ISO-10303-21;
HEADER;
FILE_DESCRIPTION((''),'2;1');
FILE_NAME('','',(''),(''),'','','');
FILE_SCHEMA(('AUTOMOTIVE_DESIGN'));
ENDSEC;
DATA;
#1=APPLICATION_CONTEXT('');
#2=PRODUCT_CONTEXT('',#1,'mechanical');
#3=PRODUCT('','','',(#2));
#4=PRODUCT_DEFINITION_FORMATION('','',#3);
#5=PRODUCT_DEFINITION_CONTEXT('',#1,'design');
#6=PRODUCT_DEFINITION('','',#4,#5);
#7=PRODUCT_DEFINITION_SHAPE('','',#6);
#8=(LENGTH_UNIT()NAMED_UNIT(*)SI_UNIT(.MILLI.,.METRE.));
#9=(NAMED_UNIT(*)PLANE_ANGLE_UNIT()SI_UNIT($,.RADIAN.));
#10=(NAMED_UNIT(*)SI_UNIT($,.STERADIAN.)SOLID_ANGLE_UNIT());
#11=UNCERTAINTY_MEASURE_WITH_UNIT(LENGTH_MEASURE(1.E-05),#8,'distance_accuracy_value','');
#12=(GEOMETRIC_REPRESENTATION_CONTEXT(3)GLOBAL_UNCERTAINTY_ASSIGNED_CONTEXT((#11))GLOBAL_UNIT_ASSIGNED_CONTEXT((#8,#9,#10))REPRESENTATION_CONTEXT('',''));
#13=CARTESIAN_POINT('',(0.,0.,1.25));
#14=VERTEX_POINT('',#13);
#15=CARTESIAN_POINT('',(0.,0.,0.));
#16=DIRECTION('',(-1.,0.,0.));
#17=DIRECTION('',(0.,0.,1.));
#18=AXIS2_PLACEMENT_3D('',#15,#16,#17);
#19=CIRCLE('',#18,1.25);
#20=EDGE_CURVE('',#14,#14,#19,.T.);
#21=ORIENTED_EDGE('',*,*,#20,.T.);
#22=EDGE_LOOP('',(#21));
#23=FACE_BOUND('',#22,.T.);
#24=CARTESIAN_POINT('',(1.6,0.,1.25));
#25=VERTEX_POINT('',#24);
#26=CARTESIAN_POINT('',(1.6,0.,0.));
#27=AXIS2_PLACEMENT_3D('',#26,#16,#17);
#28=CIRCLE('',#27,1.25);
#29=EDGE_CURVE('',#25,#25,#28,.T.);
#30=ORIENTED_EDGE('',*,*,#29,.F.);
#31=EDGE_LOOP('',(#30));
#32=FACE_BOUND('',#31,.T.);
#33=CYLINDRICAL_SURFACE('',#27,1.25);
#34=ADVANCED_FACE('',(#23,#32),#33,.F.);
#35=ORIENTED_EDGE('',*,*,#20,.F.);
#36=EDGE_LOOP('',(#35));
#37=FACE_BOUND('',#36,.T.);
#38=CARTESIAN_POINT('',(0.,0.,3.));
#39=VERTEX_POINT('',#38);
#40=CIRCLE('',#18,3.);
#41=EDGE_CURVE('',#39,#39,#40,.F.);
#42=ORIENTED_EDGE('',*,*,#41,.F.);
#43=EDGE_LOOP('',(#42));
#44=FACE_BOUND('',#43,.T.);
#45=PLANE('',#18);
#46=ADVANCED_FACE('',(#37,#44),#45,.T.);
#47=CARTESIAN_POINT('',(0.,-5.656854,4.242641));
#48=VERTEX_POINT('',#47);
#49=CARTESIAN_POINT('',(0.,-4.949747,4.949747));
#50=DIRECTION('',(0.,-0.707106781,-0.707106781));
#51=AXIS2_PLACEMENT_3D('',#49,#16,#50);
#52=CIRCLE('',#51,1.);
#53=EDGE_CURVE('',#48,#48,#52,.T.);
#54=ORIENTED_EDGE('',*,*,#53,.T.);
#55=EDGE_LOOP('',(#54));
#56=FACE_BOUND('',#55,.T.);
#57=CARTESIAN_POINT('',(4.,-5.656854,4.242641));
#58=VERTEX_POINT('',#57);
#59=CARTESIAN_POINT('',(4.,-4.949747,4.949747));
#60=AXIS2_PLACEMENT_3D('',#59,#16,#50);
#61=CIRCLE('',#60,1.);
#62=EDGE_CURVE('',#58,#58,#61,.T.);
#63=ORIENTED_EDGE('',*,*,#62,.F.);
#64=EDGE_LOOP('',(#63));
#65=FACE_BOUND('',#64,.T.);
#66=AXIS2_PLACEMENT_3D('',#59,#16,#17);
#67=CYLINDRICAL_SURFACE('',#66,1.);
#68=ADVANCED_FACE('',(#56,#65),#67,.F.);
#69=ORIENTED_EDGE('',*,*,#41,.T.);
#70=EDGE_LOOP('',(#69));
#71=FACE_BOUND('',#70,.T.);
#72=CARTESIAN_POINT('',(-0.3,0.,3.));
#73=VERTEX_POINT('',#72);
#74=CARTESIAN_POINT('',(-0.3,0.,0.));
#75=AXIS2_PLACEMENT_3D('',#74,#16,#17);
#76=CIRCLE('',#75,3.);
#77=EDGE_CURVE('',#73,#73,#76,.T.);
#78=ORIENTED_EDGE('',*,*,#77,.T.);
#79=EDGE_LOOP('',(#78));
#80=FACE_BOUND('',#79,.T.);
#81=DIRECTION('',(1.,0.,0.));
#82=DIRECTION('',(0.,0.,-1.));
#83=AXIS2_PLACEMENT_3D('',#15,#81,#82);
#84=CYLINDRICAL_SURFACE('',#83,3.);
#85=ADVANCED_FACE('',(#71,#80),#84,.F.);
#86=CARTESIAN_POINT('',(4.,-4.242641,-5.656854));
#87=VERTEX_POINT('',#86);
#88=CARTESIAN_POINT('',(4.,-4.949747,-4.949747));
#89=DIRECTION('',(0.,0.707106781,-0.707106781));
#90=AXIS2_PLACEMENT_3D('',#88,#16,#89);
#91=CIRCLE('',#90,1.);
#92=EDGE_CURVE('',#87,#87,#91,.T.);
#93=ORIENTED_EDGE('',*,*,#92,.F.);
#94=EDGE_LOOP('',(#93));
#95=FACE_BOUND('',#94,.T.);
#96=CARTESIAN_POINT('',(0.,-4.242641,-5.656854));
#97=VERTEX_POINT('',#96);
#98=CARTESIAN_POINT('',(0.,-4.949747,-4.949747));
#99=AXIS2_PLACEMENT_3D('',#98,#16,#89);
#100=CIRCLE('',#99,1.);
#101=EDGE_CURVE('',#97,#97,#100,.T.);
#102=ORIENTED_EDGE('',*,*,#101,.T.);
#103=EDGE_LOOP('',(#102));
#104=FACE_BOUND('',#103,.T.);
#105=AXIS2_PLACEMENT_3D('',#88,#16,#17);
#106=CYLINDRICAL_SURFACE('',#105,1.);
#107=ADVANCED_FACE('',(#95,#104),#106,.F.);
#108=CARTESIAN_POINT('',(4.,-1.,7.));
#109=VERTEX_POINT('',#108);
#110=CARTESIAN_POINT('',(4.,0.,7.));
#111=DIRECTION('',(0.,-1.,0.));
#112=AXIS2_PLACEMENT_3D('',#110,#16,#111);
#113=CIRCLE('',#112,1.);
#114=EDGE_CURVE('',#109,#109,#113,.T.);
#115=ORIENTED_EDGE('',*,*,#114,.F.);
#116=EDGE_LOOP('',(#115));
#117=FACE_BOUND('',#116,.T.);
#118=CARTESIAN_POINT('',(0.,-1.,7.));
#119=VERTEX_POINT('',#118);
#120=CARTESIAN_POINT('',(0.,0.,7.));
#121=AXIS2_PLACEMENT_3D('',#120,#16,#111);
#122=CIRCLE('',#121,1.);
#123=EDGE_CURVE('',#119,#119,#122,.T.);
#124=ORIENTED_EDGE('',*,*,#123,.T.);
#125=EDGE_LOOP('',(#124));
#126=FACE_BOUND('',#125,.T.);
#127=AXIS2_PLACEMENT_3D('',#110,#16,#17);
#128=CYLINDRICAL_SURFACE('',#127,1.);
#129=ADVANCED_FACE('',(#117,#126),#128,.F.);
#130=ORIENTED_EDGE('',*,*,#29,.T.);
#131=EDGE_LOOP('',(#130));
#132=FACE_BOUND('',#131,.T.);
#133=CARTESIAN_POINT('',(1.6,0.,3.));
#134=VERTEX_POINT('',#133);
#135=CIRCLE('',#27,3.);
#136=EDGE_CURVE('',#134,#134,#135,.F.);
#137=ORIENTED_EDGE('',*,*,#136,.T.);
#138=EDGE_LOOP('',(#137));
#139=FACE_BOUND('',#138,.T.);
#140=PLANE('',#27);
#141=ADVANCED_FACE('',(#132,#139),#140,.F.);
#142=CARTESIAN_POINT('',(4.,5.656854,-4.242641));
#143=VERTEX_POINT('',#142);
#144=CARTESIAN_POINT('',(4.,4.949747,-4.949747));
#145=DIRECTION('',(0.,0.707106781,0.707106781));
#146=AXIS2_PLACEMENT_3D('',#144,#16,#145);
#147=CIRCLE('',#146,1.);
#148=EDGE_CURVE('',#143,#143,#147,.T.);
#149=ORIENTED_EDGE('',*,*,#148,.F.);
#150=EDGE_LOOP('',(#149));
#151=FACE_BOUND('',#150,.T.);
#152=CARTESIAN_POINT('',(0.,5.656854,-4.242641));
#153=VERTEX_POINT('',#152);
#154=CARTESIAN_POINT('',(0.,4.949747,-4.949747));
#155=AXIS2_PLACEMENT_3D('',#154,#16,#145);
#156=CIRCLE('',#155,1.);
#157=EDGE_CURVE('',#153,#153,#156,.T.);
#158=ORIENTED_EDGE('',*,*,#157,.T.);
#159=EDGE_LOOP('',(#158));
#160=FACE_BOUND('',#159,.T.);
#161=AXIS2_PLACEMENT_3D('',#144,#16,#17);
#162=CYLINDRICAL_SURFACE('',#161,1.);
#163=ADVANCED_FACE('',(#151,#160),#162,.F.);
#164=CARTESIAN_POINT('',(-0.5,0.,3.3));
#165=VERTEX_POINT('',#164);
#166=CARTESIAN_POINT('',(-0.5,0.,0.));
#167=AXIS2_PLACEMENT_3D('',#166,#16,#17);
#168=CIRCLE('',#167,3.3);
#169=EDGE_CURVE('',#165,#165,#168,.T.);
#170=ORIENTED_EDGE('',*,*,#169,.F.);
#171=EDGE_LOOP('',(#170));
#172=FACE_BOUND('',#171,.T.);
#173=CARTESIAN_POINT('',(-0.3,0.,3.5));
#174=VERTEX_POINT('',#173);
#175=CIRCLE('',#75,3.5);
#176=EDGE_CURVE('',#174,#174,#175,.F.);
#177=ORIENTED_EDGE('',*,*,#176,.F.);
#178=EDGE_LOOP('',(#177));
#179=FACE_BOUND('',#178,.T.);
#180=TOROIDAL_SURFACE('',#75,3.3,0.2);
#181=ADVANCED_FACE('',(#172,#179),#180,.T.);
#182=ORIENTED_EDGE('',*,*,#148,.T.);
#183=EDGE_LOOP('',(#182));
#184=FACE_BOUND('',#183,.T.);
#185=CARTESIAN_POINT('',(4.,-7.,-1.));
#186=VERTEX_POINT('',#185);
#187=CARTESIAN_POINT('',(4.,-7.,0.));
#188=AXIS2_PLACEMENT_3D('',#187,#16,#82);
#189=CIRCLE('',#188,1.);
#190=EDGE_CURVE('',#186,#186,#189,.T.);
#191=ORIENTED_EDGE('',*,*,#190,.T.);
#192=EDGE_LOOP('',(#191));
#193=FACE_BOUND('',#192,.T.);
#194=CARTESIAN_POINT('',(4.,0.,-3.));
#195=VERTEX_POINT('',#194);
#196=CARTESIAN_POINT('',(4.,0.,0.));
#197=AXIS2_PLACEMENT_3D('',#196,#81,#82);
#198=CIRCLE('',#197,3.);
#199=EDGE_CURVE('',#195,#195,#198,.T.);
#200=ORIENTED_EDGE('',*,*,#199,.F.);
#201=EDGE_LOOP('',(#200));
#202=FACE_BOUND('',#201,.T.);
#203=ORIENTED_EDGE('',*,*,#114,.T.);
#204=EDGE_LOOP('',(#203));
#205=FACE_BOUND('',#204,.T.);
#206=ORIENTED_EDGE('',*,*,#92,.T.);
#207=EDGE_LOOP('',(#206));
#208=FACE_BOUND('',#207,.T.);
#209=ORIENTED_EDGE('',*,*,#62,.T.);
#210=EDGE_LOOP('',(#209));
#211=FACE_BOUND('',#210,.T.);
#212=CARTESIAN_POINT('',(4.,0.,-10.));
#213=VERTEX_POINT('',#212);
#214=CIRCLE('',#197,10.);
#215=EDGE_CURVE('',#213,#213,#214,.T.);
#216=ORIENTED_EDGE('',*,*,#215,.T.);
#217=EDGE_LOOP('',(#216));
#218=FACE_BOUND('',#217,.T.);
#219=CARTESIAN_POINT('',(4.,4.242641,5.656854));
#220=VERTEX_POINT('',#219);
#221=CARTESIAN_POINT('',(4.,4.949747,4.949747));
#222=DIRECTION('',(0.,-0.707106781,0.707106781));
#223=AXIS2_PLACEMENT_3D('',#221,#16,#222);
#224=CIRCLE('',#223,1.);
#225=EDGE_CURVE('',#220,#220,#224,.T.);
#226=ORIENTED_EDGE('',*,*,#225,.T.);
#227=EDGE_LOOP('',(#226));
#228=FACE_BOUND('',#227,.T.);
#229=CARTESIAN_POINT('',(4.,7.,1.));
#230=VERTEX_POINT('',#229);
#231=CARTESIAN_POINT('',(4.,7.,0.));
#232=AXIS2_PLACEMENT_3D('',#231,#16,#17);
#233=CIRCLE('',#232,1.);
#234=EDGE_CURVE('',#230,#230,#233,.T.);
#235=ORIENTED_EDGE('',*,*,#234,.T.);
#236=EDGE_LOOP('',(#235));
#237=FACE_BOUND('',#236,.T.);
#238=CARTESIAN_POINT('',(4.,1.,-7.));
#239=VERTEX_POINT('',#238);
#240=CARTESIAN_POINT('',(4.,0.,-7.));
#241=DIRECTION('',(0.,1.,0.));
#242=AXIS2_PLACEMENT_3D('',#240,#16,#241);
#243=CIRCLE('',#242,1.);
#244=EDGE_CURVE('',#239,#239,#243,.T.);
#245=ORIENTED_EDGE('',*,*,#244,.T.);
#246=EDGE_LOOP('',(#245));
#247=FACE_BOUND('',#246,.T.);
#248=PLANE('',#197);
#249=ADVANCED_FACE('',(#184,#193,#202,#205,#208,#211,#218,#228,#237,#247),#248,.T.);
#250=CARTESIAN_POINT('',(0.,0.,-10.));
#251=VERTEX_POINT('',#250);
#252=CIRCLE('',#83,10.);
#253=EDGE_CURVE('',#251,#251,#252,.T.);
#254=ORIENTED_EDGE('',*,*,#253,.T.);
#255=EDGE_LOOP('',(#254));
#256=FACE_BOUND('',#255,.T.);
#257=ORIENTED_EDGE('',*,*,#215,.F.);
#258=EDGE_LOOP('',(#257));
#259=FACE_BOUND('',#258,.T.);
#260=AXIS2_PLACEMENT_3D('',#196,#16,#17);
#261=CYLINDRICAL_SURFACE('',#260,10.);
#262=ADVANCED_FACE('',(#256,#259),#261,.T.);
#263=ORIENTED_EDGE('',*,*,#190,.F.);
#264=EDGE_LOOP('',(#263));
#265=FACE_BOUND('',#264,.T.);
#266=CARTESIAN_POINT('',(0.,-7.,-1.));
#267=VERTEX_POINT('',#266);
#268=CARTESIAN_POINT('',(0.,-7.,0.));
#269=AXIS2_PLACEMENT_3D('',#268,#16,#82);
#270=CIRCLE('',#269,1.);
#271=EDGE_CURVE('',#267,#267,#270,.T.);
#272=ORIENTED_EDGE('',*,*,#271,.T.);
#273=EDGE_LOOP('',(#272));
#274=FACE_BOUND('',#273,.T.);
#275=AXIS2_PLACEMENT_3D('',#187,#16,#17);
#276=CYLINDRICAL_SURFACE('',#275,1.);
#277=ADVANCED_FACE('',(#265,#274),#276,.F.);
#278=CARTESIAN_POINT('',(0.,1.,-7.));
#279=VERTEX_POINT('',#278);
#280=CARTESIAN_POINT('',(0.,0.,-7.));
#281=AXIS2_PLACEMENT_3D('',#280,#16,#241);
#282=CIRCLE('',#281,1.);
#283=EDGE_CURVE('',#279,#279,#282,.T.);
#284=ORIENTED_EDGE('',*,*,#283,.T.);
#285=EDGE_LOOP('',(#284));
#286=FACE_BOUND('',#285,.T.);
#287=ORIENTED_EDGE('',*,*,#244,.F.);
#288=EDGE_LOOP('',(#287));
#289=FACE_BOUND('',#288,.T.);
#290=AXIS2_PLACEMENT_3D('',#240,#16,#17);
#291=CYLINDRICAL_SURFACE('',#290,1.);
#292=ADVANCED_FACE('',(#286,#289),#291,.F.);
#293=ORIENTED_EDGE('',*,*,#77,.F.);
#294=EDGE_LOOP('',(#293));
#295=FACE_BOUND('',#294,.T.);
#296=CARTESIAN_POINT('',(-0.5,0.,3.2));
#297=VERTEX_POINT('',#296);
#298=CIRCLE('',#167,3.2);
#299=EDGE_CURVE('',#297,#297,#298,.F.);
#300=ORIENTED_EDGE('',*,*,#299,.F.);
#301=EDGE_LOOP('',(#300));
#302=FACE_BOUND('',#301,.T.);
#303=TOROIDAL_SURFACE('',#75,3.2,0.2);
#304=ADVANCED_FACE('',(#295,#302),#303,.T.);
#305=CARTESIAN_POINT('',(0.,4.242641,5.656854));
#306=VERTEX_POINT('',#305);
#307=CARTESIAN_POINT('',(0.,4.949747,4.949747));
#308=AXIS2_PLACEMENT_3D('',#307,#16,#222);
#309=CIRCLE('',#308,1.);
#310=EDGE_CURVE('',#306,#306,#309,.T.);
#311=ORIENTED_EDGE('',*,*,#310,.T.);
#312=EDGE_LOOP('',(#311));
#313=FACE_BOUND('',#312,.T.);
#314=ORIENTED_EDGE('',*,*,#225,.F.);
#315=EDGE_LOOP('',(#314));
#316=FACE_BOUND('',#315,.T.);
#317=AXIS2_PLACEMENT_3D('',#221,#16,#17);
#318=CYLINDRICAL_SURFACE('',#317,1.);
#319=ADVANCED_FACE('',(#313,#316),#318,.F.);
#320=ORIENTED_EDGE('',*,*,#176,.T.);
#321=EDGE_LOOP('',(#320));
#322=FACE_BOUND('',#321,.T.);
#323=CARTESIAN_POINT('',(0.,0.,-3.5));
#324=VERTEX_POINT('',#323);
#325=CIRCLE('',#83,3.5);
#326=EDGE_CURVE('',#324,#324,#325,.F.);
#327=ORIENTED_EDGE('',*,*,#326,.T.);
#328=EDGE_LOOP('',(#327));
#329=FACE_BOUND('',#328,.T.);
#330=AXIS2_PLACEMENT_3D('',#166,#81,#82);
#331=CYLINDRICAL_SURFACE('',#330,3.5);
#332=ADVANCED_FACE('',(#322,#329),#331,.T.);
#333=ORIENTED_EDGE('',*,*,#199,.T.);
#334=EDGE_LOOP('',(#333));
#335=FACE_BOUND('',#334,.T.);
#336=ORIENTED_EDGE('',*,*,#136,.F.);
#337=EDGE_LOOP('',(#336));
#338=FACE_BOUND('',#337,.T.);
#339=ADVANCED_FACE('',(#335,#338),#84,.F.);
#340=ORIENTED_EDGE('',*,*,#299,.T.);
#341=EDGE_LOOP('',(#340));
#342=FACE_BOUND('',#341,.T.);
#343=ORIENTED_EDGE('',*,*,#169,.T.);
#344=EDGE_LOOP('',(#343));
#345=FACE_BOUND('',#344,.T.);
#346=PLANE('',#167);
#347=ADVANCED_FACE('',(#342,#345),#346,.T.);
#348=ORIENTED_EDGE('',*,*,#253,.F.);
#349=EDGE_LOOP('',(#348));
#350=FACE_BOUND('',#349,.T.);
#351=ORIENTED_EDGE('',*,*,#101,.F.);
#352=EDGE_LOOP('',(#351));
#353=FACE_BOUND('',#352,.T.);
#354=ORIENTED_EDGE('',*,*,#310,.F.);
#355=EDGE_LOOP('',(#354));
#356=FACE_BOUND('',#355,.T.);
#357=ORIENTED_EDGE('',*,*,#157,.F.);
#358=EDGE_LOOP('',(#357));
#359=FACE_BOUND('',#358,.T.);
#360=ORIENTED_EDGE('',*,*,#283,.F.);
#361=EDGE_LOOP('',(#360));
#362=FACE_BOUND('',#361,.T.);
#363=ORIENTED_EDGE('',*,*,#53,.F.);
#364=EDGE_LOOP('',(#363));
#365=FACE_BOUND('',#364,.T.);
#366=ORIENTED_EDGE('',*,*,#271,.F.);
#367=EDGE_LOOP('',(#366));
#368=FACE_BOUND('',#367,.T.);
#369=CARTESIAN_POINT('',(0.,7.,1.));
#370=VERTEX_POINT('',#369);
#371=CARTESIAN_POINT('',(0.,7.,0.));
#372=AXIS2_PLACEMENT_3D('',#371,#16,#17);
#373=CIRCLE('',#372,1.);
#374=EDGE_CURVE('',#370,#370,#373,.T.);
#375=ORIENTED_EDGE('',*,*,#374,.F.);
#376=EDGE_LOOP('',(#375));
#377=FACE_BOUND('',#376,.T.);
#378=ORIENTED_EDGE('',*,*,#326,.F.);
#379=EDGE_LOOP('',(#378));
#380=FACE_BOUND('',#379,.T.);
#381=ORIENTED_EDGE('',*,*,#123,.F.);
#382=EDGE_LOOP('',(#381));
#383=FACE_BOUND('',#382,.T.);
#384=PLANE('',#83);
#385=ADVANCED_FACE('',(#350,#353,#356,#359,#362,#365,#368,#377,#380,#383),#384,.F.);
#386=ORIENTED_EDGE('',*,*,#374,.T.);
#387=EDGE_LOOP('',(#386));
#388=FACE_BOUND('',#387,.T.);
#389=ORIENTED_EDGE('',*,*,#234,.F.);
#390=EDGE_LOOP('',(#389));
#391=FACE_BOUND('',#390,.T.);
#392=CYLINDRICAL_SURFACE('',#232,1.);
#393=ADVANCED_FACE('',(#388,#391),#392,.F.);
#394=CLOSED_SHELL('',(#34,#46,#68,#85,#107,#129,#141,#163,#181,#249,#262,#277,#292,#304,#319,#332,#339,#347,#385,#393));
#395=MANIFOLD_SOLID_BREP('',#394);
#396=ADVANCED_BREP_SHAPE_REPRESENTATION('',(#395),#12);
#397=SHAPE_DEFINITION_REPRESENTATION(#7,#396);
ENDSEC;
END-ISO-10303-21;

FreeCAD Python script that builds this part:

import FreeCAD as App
import Part
import Sketcher

V = App.Vector


def edges_at(feature, points):
    """Names of the edges that pass closest to the given points."""
    edges = feature.Shape.Edges
    near = lambda p: min(range(len(edges)), key=lambda i: edges[i].distToShape(Part.Vertex(*p))[0])
    return sorted({f"Edge{near(p) + 1}" for p in points})

doc = App.newDocument("Part")
body = doc.addObject("PartDesign::Body", "Body")

sketch1 = doc.addObject("Sketcher::SketchObject", "Sketch")
body.addObject(sketch1)
sketch1.AttachmentSupport = (doc.YZ_Plane, [""])
sketch1.MapMode = "FlatFace"
sketch1.addGeometry(Part.Circle(V(0, 0, 0), V(0, 0, 1), 10), False)
sketch1.addConstraint([
    Sketcher.Constraint("Coincident", 0, 3, -1, 1),
    Sketcher.Constraint("Diameter", 0, 20.0),
])
pad1 = doc.addObject("PartDesign::Pad", "Pad")
body.addObject(pad1)
pad1.Profile = sketch1
pad1.Length = 4

sketch2 = doc.addObject("Sketcher::SketchObject", "Sketch001")
body.addObject(sketch2)
sketch2.AttachmentSupport = (doc.YZ_Plane, [""])
sketch2.MapMode = "FlatFace"
sketch2.AttachmentOffset = App.Placement(V(0, 0, 4), App.Rotation())
sketch2.addGeometry(Part.Circle(V(0, 0, 0), V(0, 0, 1), 3), False)
sketch2.addConstraint([
    Sketcher.Constraint("Coincident", 0, 3, -1, 1),
    Sketcher.Constraint("Diameter", 0, 6.0),
])
pocket1 = doc.addObject("PartDesign::Pocket", "Pocket")
body.addObject(pocket1)
pocket1.Profile = sketch2
pocket1.Type = "ThroughAll"

sketch3 = doc.addObject("Sketcher::SketchObject", "Sketch002")
body.addObject(sketch3)
sketch3.AttachmentSupport = (doc.YZ_Plane, [""])
sketch3.MapMode = "FlatFace"
sketch3.addGeometry(Part.Circle(V(7, 0, 0), V(0, 0, 1), 1), False)
sketch3.addConstraint([
    Sketcher.Constraint("PointOnObject", 0, 3, -1),
    Sketcher.Constraint("Diameter", 0, 2.0),
    Sketcher.Constraint("DistanceX", -1, 1, 0, 3, 7.0),
])
pocket2 = doc.addObject("PartDesign::Pocket", "Pocket001")
body.addObject(pocket2)
pocket2.Profile = sketch3
pocket2.Type = "ThroughAll"
pocket2.Reversed = True
doc.recompute()

polarpattern = doc.addObject("PartDesign::PolarPattern", "PolarPattern")
body.addObject(polarpattern)
polarpattern.Originals = [pocket2]
polarpattern.Axis = (doc.X_Axis, [""])
polarpattern.Angle = 360
polarpattern.Occurrences = 8
body.Tip = polarpattern

sketch4 = doc.addObject("Sketcher::SketchObject", "Sketch003")
body.addObject(sketch4)
sketch4.AttachmentSupport = (doc.YZ_Plane, [""])
sketch4.MapMode = "FlatFace"
sketch4.addGeometry([
    Part.Circle(V(0, 0, 0), V(0, 0, 1), 3.5),
    Part.Circle(V(0, 0, 0), V(0, 0, 1), 3),
], False)
sketch4.addConstraint([
    Sketcher.Constraint("Coincident", 0, 3, -1, 1),
    Sketcher.Constraint("Coincident", 1, 3, -1, 1),
    Sketcher.Constraint("Diameter", 0, 7.0),
    Sketcher.Constraint("Diameter", 1, 6.0),
])
pad2 = doc.addObject("PartDesign::Pad", "Pad001")
body.addObject(pad2)
pad2.Profile = sketch4
pad2.Length = 0.5
pad2.Reversed = True
doc.recompute()

fillet = doc.addObject("PartDesign::Fillet", "Fillet")
body.addObject(fillet)
fillet.Base = (pad2, edges_at(pad2, [(-0.5, 0, 3.5), (-0.5, 0, 3)]))
fillet.Radius = 0.2

sketch5 = doc.addObject("Sketcher::SketchObject", "Sketch004")
body.addObject(sketch5)
sketch5.AttachmentSupport = (doc.YZ_Plane, [""])
sketch5.MapMode = "FlatFace"
sketch5.AttachmentOffset = App.Placement(V(0, 0, 1.6), App.Rotation())
sketch5.addGeometry([
    Part.Circle(V(0, 0, 0), V(0, 0, 1), 3.5),
    Part.Circle(V(0, 0, 0), V(0, 0, 1), 1.2),
], False)
sketch5.addConstraint([
    Sketcher.Constraint("Coincident", 0, 3, -1, 1),
    Sketcher.Constraint("Coincident", 1, 3, -1, 1),
    Sketcher.Constraint("Diameter", 0, 7.0),
    Sketcher.Constraint("Diameter", 1, 2.5),
])
pad3 = doc.addObject("PartDesign::Pad", "Pad002")
body.addObject(pad3)
pad3.Profile = sketch5
pad3.Length = 1.6
pad3.Reversed = True

doc.recompute()
